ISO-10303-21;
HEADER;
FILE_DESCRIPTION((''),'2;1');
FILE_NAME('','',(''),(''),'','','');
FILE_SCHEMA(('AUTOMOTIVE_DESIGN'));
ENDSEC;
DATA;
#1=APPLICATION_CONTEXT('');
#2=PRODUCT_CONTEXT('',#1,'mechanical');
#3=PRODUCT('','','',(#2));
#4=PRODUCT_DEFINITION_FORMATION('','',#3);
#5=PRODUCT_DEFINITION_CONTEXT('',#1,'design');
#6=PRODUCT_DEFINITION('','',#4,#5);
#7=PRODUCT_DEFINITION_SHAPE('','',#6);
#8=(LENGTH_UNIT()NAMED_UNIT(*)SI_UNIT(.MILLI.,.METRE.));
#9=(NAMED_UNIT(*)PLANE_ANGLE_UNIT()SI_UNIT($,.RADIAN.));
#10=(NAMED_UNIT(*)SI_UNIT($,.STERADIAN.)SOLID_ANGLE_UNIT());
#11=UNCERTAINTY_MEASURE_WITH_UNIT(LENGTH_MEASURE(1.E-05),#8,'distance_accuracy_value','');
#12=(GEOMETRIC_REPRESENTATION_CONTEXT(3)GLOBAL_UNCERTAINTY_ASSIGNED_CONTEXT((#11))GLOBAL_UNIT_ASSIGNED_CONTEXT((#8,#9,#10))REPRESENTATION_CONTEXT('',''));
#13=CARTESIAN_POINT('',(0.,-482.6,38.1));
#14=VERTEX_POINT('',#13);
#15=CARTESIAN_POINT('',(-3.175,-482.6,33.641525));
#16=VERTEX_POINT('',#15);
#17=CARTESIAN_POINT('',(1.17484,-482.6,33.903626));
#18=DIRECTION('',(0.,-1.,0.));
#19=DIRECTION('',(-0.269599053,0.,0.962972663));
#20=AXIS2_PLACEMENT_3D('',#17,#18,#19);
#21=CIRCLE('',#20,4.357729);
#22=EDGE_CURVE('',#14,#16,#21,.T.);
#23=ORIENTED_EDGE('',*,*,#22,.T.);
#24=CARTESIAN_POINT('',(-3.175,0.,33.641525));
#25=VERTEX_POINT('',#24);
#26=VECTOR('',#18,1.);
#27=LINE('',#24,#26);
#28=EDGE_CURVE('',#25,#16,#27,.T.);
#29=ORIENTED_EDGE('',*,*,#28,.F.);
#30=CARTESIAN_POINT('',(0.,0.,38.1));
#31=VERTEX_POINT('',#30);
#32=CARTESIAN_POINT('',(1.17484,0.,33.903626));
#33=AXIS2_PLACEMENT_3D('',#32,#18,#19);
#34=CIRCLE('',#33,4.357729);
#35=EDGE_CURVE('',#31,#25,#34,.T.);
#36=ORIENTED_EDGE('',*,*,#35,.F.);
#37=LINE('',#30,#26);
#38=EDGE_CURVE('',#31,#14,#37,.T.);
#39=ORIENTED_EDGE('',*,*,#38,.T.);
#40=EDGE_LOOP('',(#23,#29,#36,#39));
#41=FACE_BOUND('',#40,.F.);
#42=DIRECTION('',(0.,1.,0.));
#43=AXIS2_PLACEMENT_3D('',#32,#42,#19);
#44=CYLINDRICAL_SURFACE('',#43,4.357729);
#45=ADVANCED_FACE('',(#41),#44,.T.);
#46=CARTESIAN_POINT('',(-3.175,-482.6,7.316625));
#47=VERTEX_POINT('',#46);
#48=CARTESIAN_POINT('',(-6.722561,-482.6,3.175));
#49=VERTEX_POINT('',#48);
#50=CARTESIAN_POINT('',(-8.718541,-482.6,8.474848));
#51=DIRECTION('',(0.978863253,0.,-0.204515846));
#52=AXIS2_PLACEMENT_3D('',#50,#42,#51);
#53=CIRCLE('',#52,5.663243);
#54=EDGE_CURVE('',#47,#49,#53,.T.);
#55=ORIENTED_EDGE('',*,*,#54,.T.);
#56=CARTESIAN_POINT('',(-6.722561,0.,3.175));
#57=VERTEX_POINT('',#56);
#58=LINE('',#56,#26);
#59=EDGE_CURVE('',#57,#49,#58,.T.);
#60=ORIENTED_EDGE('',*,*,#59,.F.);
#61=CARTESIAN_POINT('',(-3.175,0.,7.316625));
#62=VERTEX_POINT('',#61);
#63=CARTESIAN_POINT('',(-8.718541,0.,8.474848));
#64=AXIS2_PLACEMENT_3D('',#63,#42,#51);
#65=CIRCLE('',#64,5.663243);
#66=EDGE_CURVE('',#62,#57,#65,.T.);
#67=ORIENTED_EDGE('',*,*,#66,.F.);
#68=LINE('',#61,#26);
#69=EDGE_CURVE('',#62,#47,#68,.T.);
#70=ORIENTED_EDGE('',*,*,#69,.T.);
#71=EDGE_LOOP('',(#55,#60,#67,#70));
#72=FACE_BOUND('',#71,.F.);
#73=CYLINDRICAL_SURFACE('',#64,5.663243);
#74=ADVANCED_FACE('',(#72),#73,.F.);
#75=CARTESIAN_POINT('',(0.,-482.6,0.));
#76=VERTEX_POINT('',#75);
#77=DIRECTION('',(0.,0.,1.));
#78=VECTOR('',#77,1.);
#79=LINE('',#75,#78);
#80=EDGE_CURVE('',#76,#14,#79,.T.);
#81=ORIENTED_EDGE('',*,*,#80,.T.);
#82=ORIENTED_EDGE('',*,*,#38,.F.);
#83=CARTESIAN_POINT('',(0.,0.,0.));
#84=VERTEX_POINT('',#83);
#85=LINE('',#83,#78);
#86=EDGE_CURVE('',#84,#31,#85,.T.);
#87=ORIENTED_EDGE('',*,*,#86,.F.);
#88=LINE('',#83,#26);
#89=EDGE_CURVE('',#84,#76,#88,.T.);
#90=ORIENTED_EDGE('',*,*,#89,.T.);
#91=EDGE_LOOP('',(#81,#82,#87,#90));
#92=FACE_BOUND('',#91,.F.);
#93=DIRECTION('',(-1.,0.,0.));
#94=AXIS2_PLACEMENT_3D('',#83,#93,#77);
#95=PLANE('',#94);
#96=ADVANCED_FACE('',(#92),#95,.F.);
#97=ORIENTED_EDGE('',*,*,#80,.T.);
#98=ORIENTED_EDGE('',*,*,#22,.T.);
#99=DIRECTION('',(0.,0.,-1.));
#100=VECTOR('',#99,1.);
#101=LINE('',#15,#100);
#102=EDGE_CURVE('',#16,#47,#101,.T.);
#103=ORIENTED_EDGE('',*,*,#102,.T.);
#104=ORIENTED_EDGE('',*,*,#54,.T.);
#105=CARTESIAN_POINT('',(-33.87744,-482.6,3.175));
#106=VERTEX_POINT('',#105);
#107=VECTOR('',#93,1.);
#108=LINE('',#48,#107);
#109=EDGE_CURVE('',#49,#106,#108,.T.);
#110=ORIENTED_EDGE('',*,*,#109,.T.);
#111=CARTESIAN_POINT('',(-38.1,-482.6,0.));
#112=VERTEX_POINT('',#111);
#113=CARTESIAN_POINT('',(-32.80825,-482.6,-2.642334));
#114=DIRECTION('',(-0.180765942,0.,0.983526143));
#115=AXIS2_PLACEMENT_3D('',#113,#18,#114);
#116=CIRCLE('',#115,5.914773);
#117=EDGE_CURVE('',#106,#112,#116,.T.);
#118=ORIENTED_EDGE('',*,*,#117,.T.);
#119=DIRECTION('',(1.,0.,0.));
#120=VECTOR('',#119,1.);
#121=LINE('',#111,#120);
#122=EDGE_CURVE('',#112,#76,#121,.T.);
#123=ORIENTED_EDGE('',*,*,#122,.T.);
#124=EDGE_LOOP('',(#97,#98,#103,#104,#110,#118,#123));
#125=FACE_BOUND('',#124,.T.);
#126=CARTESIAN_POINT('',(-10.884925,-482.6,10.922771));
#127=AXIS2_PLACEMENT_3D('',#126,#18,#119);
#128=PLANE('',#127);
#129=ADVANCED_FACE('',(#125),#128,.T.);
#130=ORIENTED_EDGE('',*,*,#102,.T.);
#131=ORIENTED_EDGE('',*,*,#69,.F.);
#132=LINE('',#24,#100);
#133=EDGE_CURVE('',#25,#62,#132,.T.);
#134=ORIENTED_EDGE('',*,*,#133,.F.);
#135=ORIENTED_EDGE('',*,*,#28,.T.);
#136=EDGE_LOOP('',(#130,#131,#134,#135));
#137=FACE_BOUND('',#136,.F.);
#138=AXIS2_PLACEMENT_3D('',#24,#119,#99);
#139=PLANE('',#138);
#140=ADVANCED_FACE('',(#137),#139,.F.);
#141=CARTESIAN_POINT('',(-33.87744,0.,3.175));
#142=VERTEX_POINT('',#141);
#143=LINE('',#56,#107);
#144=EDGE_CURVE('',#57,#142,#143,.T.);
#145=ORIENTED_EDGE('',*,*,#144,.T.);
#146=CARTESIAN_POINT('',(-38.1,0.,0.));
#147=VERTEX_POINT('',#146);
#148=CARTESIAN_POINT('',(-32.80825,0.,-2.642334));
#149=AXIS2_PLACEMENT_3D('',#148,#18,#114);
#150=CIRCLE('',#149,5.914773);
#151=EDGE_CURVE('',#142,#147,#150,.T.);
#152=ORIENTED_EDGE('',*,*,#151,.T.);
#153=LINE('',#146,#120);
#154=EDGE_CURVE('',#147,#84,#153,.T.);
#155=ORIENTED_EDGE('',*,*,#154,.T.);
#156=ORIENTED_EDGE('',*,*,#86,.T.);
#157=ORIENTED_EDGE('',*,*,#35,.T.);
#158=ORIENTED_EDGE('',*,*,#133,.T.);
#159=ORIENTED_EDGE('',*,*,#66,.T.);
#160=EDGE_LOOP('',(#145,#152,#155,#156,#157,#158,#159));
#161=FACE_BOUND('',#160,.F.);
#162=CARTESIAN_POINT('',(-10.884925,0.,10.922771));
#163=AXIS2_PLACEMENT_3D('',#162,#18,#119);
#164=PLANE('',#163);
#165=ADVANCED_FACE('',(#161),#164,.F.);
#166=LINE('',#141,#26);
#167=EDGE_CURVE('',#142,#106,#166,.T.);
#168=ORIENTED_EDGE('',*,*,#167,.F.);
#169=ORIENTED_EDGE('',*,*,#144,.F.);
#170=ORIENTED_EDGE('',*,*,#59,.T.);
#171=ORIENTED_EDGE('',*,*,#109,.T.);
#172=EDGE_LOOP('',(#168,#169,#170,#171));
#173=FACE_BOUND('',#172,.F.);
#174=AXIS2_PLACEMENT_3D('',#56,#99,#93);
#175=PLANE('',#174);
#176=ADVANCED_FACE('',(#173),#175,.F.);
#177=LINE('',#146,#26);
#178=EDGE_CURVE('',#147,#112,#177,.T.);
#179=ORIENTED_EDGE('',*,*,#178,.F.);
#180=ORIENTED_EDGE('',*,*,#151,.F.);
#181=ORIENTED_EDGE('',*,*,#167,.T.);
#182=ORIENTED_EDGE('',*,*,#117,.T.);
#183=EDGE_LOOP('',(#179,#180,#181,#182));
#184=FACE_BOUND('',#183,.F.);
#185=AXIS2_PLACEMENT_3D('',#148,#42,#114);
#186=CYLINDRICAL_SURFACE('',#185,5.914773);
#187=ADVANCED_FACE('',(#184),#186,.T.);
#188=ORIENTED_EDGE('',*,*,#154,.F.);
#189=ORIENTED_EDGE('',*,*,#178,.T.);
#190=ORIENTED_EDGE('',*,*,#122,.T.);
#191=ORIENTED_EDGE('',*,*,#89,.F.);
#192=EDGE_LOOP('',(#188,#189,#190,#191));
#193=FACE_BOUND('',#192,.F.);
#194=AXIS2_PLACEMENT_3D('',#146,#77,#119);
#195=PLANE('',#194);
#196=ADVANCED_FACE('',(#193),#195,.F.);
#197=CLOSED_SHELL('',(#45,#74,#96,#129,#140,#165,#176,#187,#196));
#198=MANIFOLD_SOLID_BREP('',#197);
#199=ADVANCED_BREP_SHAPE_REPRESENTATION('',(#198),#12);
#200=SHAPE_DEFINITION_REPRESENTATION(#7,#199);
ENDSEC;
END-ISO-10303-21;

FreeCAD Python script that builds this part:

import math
import FreeCAD as App
import Part
import Sketcher

V = App.Vector
Q = App.Units.Quantity

doc = App.newDocument("Part")
params = doc.addObject("Spreadsheet::Sheet", "Params")
for row, (alias, value) in enumerate([
    ("sketch1_width", "1.5 in"),
    ("pad1_length", "19 in"),
], start=1):
    params.set(f"A{row}", alias)
    params.set(f"B{row}", "=" + value)
    params.setAlias(f"B{row}", alias)

body = doc.addObject("PartDesign::Body", "Body")

# Sketch on XZ plane
sketch1 = body.newObject("Sketcher::SketchObject", "Sketch")
sketch1.AttachmentSupport = (doc.getObject("XZ_Plane"), [""])
sketch1.MapMode = "FlatFace"
sketch1.addGeometry([
    Part.LineSegment(V(0, 0, 0), V(0, 38.1, 0)),  # 0
    Part.ArcOfCircle(Part.Circle(V(1.2, 33.9, 0), V(0, 0, 1), 4.4), math.radians(106), math.radians(183)),  # 1
    Part.LineSegment(V(-3.2, 33.6, 0), V(-3.2, 7.3, 0)),  # 2
    Part.ArcOfCircle(Part.Circle(V(-8.7, 8.5, 0), V(0, 0, 1), 5.7), math.radians(-69), math.radians(-12)),  # 3
    Part.LineSegment(V(-6.7, 3.2, 0), V(-33.9, 3.2, 0)),  # 4
    Part.ArcOfCircle(Part.Circle(V(-32.8, -2.6, 0), V(0, 0, 1), 5.9), math.radians(100), math.radians(153)),  # 5
    Part.LineSegment(V(-38.1, 0, 0), V(0, 0, 0)),  # 6
], False)
sketch1.addConstraint([
    Sketcher.Constraint("Coincident", 0, 2, 1, 1),
    Sketcher.Constraint("Coincident", 1, 2, 2, 1),
    Sketcher.Constraint("Coincident", 2, 2, 3, 2),
    Sketcher.Constraint("Coincident", 3, 1, 4, 1),
    Sketcher.Constraint("Coincident", 4, 2, 5, 1),
    Sketcher.Constraint("Coincident", 5, 2, 6, 1),
    Sketcher.Constraint("Coincident", 6, 2, 0, 1),
    Sketcher.Constraint("Vertical", 0),
    Sketcher.Constraint("Vertical", 2),
    Sketcher.Constraint("Horizontal", 4),
    Sketcher.Constraint("Horizontal", 6),
    Sketcher.Constraint("Coincident", 6, 2, -1, 1),
    Sketcher.Constraint("Equal", 6, 0),
    Sketcher.Constraint("DistanceX", 6, 1, 6, 2, Q("1.5 in")),
    Sketcher.Constraint("DistanceX", 1, 2, -1, 1, Q("0.125 in")),
    Sketcher.Constraint("DistanceY", -1, 1, 3, 1, Q("0.125 in")),
    Sketcher.Constraint("Radius", 1, 4.357729),
    Sketcher.Constraint("DistanceY", 2, 2, 2, 1, 26.3249),
    Sketcher.Constraint("Radius", 3, 5.663243),
    Sketcher.Constraint("Radius", 5, 5.914773),
    Sketcher.Constraint("DistanceX", 4, 2, 4, 1, 27.154879),
    Sketcher.Constraint("DistanceY", 1, 2, 1, 3, 0.262101),
    Sketcher.Constraint("DistanceX", 3, 1, 1, 3, 7.897401),
])
sketch1.setExpression("Constraints[13]", "Params.sketch1_width")
pad1 = body.newObject("PartDesign::Pad", "Pad")
pad1.Profile = sketch1
pad1.setExpression("Length", "Params.pad1_length")

doc.recompute()
